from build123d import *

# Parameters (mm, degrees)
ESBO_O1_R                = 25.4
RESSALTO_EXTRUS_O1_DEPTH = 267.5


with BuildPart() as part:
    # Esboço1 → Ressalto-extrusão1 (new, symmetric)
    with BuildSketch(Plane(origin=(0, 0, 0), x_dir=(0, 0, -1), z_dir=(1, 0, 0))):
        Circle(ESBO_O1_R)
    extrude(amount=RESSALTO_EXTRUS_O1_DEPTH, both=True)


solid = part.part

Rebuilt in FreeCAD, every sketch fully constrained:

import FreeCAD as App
import Part
import Sketcher
Q = App.Units.Quantity

doc = App.newDocument("Part")
params = doc.addObject("Spreadsheet::Sheet", "Params")
for row, (alias, value) in enumerate([
    ("sketch1_diameter", "50.8 mm"),
    ("pad1_length", "535 mm"),
], start=1):
    params.set(f"A{row}", alias)
    params.set(f"B{row}", "=" + value)
    params.setAlias(f"B{row}", alias)

body = doc.addObject("PartDesign::Body", "Body")

# Sketch on YZ plane
sketch1 = doc.addObject("Sketcher::SketchObject", "Sketch")
body.addObject(sketch1)
sketch1.AttachmentSupport = (doc.YZ_Plane, [""])
sketch1.MapMode = "FlatFace"
sketch1.addGeometry(Part.Circle(App.Vector(0, 0, 0), App.Vector(0, 0, 1), 25), False)
sketch1.addConstraint([
    Sketcher.Constraint("Coincident", 0, 3, -1, 1),
    Sketcher.Constraint("Diameter", 0, Q("50.8 mm")),
])
sketch1.setExpression("Constraints[1]", "Params.sketch1_diameter")
pad1 = doc.addObject("PartDesign::Pad", "Pad")
body.addObject(pad1)
pad1.Profile = sketch1
pad1.setExpression("Length", "Params.pad1_length")
pad1.Midplane = True

doc.recompute()
